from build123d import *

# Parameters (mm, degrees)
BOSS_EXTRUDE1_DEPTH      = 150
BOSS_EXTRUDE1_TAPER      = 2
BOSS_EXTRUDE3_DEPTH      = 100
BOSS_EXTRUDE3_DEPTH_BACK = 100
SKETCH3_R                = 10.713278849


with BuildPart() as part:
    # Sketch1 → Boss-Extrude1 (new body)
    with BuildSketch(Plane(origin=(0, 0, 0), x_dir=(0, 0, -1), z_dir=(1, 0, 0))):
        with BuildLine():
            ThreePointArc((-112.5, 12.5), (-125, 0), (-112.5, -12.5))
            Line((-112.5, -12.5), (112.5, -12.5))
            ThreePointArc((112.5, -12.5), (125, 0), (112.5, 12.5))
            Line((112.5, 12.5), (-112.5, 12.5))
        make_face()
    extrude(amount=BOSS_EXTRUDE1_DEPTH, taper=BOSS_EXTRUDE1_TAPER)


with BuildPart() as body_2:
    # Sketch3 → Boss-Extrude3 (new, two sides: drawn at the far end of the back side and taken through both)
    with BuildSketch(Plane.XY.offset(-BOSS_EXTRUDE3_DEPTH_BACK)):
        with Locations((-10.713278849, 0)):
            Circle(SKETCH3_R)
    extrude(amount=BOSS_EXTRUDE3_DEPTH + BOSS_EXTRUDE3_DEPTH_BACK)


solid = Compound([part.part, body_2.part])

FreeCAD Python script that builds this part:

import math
import FreeCAD as App
import Part
import Sketcher

doc = App.newDocument("Part")
body = doc.addObject("PartDesign::Body", "Body")

# Sketch on YZ plane
sketch1 = body.newObject("Sketcher::SketchObject", "Sketch")
sketch1.AttachmentSupport = (doc.getObject("YZ_Plane"), [""])
sketch1.MapMode = "FlatFace"
sketch1.addGeometry([
    Part.ArcOfCircle(Part.Circle(App.Vector(0, 112.5, 0), App.Vector(0, 0, 1), 12.5), math.radians(0), math.radians(180)),
    Part.LineSegment(App.Vector(-12.5, 112.5, 0), App.Vector(-12.5, -112.5, 0)),
    Part.ArcOfCircle(Part.Circle(App.Vector(0, -112.5, 0), App.Vector(0, 0, 1), 12.5), math.radians(180), math.radians(360)),
    Part.LineSegment(App.Vector(12.5, -112.5, 0), App.Vector(12.5, 112.5, 0)),
], False)
sketch1.addConstraint([
    Sketcher.Constraint("Tangent", 0, 2, 1, 1),
    Sketcher.Constraint("Tangent", 1, 2, 2, 1),
    Sketcher.Constraint("Tangent", 2, 2, 3, 1),
    Sketcher.Constraint("Tangent", 3, 2, 0, 1),
    Sketcher.Constraint("Vertical", 1),
    Sketcher.Constraint("Vertical", 3),
    Sketcher.Constraint("Symmetric", 0, 3, 2, 3, -1, 1),
    Sketcher.Constraint("Radius", 0, 12.5),
    Sketcher.Constraint("DistanceY", 1, 2, 1, 1, 225.0),
])
pad1 = body.newObject("PartDesign::Pad", "Pad")
pad1.Profile = sketch1
pad1.Length = 150
pad1.TaperAngle = -2
body2 = doc.addObject("PartDesign::Body", "Body001")

# Sketch on XY plane
sketch2 = body2.newObject("Sketcher::SketchObject", "Sketch001")
sketch2.AttachmentSupport = (doc.getObject("XY_Plane001"), [""])
sketch2.MapMode = "FlatFace"
sketch2.addGeometry(Part.Circle(App.Vector(-10.713279, 0, 0), App.Vector(0, 0, 1), 10.713279), False)
sketch2.addConstraint([
    Sketcher.Constraint("PointOnObject", 0, 3, -1),
    Sketcher.Constraint("Diameter", 0, 21.426558),
    Sketcher.Constraint("DistanceX", 0, 3, -1, 1, 10.713279),
])
pad2 = body2.newObject("PartDesign::Pad", "Pad001")
pad2.Profile = sketch2
pad2.Type = "TwoLengths"
pad2.Length = 100
pad2.Length2 = 100

doc.recompute()
